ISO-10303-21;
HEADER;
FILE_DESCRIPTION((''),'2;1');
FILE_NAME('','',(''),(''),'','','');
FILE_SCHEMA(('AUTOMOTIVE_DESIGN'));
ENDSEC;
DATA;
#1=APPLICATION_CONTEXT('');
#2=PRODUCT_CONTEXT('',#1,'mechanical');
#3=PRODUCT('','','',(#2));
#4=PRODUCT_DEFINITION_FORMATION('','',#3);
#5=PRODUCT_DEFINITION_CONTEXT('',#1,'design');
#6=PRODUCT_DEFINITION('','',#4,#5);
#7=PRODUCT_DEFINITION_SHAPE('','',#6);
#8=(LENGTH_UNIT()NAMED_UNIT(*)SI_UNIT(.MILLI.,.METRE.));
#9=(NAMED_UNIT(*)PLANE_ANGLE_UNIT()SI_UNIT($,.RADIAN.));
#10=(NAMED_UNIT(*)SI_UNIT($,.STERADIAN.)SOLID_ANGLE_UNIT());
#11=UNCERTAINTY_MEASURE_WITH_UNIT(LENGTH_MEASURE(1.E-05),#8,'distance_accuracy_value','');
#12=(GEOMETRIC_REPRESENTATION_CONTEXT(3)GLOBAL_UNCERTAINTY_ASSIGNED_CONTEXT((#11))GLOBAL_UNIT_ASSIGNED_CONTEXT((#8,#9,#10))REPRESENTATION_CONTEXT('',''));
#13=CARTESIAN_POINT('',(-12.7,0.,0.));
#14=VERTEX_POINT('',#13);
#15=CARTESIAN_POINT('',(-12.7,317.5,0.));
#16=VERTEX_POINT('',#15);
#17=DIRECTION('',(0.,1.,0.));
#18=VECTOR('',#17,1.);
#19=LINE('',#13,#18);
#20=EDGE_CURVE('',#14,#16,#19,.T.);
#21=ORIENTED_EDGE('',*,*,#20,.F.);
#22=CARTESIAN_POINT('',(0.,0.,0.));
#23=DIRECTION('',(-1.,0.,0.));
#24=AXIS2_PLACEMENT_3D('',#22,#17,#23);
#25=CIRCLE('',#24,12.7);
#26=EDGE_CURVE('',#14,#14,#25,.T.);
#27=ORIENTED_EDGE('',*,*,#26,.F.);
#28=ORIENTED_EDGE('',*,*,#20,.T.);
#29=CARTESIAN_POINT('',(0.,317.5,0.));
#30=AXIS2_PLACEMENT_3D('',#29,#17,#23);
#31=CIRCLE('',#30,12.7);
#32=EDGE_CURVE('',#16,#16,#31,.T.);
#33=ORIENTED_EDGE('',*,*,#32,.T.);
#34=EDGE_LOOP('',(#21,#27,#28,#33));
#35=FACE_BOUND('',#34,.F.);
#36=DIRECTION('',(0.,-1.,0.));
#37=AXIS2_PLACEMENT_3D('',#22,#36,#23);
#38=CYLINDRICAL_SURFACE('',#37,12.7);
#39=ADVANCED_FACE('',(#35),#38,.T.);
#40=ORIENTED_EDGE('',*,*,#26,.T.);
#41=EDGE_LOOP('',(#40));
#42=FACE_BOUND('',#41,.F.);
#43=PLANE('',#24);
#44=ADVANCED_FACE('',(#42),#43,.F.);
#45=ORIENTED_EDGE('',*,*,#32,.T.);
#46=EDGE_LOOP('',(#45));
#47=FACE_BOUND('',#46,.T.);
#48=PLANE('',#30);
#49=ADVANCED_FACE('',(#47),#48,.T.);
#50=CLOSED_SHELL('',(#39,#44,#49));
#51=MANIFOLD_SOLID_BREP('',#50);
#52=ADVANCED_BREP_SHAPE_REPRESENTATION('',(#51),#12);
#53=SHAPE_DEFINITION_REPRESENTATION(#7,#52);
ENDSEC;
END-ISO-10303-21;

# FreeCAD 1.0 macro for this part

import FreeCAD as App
import Part
import Sketcher

V = App.Vector
Q = App.Units.Quantity

doc = App.newDocument("Part")
body = doc.addObject("PartDesign::Body", "Body")

# Sketch on XZ plane
sketch1 = doc.addObject("Sketcher::SketchObject", "Sketch")
body.addObject(sketch1)
sketch1.AttachmentSupport = (doc.XZ_Plane, [""])
sketch1.MapMode = "FlatFace"
sketch1.addGeometry(Part.Circle(V(0, 0, 0), V(0, 0, 1), 13), False)
sketch1.addConstraint(Sketcher.Constraint("Coincident", 0, 3, -1, 1))
sketch1.addConstraint(Sketcher.Constraint("Diameter", 0, Q("1 in")))
pad1 = doc.addObject("PartDesign::Pad", "Pad")
body.addObject(pad1)
pad1.Profile = sketch1
pad1.Length = Q("12.5 in")
pad1.Reversed = True

doc.recompute()
